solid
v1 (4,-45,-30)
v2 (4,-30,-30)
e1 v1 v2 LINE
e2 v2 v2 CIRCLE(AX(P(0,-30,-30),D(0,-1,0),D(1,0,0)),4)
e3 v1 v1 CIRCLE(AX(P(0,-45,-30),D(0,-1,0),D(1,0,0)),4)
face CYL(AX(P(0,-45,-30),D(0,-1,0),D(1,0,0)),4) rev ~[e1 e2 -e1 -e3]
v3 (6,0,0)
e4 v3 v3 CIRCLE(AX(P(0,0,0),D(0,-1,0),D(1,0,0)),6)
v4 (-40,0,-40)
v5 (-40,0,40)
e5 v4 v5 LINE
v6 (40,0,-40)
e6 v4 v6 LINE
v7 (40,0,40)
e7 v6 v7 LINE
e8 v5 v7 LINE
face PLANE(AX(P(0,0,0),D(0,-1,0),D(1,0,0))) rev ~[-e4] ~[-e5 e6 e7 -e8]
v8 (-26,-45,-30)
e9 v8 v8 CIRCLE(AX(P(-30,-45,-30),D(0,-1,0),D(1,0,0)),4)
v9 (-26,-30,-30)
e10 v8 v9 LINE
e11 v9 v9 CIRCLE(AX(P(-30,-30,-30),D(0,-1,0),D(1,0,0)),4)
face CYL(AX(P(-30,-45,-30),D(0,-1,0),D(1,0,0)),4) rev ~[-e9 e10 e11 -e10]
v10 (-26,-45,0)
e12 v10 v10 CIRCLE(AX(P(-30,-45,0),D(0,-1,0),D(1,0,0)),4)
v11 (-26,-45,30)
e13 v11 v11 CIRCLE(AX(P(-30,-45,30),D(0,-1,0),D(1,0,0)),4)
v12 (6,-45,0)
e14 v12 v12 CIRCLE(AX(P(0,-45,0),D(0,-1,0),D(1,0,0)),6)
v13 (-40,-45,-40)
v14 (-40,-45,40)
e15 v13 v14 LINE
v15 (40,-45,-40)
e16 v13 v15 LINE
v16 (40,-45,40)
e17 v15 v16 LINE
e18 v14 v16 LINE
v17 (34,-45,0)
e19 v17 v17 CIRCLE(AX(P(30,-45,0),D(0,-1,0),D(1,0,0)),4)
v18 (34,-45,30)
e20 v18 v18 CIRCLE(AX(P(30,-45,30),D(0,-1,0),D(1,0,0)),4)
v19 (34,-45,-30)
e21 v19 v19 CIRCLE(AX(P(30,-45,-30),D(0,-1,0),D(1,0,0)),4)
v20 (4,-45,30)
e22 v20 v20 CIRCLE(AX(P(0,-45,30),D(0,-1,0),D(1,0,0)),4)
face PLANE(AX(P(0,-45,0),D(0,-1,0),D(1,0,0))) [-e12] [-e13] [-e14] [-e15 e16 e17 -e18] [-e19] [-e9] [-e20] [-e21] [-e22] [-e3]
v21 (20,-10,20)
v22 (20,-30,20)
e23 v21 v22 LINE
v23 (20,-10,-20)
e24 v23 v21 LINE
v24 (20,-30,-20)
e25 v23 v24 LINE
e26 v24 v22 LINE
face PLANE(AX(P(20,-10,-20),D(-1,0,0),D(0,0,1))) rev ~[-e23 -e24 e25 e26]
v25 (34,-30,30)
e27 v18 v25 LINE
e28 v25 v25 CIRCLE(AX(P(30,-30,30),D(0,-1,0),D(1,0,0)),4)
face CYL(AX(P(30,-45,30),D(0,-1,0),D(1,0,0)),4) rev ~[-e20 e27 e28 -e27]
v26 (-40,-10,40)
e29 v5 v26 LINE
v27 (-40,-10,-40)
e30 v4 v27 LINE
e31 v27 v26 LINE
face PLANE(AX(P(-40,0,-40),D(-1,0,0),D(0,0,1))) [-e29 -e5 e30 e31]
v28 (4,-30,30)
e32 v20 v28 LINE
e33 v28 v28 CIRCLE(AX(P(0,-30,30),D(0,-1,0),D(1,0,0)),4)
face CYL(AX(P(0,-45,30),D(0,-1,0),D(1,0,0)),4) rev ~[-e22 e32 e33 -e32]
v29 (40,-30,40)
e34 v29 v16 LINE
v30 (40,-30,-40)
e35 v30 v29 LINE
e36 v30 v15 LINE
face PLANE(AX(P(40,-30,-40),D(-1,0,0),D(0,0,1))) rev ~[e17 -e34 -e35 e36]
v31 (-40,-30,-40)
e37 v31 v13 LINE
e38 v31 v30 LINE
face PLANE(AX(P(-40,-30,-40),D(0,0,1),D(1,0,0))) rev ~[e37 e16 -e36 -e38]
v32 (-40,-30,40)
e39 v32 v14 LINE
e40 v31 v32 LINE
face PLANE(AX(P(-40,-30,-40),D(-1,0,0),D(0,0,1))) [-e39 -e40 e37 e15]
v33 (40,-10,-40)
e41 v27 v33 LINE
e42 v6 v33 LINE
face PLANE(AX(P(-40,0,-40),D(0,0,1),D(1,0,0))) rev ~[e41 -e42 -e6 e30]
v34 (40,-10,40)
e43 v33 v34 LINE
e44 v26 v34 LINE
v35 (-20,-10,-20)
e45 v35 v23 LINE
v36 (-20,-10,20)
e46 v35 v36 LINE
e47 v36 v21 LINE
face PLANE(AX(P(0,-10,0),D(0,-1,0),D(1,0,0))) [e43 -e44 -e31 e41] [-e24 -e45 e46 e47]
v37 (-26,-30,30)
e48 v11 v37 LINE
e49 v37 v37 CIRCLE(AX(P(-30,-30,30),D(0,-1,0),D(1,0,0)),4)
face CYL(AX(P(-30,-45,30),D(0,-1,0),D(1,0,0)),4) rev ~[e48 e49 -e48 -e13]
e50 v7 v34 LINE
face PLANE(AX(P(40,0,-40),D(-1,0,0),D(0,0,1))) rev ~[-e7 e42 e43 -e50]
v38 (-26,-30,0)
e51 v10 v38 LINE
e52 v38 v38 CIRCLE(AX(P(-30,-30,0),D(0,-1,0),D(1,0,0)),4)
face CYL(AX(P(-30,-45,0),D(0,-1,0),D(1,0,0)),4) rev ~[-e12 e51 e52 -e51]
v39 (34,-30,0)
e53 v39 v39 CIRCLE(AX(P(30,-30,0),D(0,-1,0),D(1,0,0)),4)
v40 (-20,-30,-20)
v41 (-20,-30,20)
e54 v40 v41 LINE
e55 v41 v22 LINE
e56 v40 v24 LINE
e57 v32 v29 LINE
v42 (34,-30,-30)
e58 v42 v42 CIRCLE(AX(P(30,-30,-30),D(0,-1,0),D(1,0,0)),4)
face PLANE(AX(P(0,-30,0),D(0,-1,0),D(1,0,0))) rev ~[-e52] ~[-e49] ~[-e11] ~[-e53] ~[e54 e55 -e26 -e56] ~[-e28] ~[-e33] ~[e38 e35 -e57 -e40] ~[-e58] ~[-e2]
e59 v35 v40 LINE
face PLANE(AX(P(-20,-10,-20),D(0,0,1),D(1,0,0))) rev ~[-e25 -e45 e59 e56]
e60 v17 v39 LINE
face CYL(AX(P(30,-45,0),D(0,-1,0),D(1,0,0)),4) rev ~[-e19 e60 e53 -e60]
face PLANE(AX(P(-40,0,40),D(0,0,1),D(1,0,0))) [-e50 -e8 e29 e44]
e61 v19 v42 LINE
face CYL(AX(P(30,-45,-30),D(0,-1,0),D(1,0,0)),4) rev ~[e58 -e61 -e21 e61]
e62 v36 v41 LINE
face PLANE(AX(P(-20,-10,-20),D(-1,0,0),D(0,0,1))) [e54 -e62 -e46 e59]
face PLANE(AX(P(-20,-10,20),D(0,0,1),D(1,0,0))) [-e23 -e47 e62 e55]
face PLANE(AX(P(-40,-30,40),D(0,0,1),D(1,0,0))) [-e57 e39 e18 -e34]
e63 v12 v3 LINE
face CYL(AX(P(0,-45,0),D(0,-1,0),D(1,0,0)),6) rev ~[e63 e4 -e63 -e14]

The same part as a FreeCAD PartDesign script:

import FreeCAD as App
import Part
import Sketcher
Q = App.Units.Quantity


def add_polygon(sketch, points):
    """Adds a closed chain of lines whose ends are joined by coincident constraints."""
    first, n = sketch.GeometryCount, len(points)
    for a, b in zip(points, points[1:] + points[:1]):
        sketch.addGeometry(Part.LineSegment(App.Vector(*a, 0), App.Vector(*b, 0)), False)
    for i in range(n):
        sketch.addConstraint(Sketcher.Constraint("Coincident", first + i, 2, first + (i + 1) % n, 1))

doc = App.newDocument("Part")
body = doc.addObject("PartDesign::Body", "Body")

# Sketch on XZ plane
sketch1 = body.newObject("Sketcher::SketchObject", "Sketch")
sketch1.AttachmentSupport = (doc.getObject("XZ_Plane"), [""])
sketch1.MapMode = "FlatFace"
add_polygon(sketch1, [(-40, 40), (-40, -40), (40, -40), (40, 40)])  # lines 0-3
sketch1.addConstraint([
    Sketcher.Constraint("Vertical", 0),
    Sketcher.Constraint("Horizontal", 1),
    Sketcher.Constraint("Vertical", 2),
    Sketcher.Constraint("Horizontal", 3),
    Sketcher.Constraint("Symmetric", 0, 2, 2, 2, -1, 1),
    Sketcher.Constraint("Equal", 3, 0),
    Sketcher.Constraint("DistanceX", 1, 1, 1, 2, Q("80 mm")),
])
pad1 = body.newObject("PartDesign::Pad", "Pad")
pad1.Profile = sketch1
pad1.Length = 10

# Sketch on XZ plane
sketch2 = body.newObject("Sketcher::SketchObject", "Sketch001")
sketch2.AttachmentSupport = (doc.getObject("XZ_Plane"), [""])
sketch2.MapMode = "FlatFace"
sketch2.AttachmentOffset = App.Placement(App.Vector(0, 0, 10), App.Rotation())
add_polygon(sketch2, [(-20, 20), (-20, -20), (20, -20), (20, 20)])  # lines 0-3
sketch2.addConstraint([
    Sketcher.Constraint("Vertical", 0),
    Sketcher.Constraint("Horizontal", 1),
    Sketcher.Constraint("Vertical", 2),
    Sketcher.Constraint("Horizontal", 3),
    Sketcher.Constraint("Symmetric", 0, 2, 2, 2, -1, 1),
    Sketcher.Constraint("Equal", 3, 0),
    Sketcher.Constraint("DistanceX", 1, 1, 1, 2, Q("40 mm")),
])
pad2 = body.newObject("PartDesign::Pad", "Pad001")
pad2.Profile = sketch2
pad2.Length = 20

# Sketch on XZ plane
sketch3 = body.newObject("Sketcher::SketchObject", "Sketch002")
sketch3.AttachmentSupport = (doc.getObject("XZ_Plane"), [""])
sketch3.MapMode = "FlatFace"
sketch3.AttachmentOffset = App.Placement(App.Vector(0, 0, 30), App.Rotation())
add_polygon(sketch3, [(-40, 40), (-40, -40), (40, -40), (40, 40)])  # lines 0-3
sketch3.addConstraint([
    Sketcher.Constraint("Vertical", 0),
    Sketcher.Constraint("Horizontal", 1),
    Sketcher.Constraint("Vertical", 2),
    Sketcher.Constraint("Horizontal", 3),
    Sketcher.Constraint("Symmetric", 0, 2, 2, 2, -1, 1),
    Sketcher.Constraint("Equal", 3, 0),
    Sketcher.Constraint("DistanceX", 1, 1, 1, 2, Q("80 mm")),
])
pad3 = body.newObject("PartDesign::Pad", "Pad002")
pad3.Profile = sketch3
pad3.Length = 15

# Sketch on XZ plane
sketch4 = body.newObject("Sketcher::SketchObject", "Sketch003")
sketch4.AttachmentSupport = (doc.getObject("XZ_Plane"), [""])
sketch4.MapMode = "FlatFace"
sketch4.AttachmentOffset = App.Placement(App.Vector(0, 0, 45), App.Rotation())
sketch4.addGeometry([
    Part.Circle(App.Vector(-30, 30, 0), App.Vector(0, 0, 1), 4),  # 0
    Part.Circle(App.Vector(30, 30, 0), App.Vector(0, 0, 1), 4),  # 1
    Part.Circle(App.Vector(30, -30, 0), App.Vector(0, 0, 1), 4),  # 2
    Part.Circle(App.Vector(-30, -30, 0), App.Vector(0, 0, 1), 4),  # 3
    Part.Circle(App.Vector(0, -30, 0), App.Vector(0, 0, 1), 4),  # 4
    Part.Circle(App.Vector(0, 30, 0), App.Vector(0, 0, 1), 4),  # 5
    Part.Circle(App.Vector(-30, 0, 0), App.Vector(0, 0, 1), 4),  # 6
    Part.Circle(App.Vector(30, 0, 0), App.Vector(0, 0, 1), 4),  # 7
], False)
sketch4.addConstraint([
    Sketcher.Constraint("Equal", 0, 1),
    Sketcher.Constraint("Equal", 1, 2),
    Sketcher.Constraint("Equal", 2, 3),
    Sketcher.Constraint("Equal", 3, 4),
    Sketcher.Constraint("Equal", 4, 5),
    Sketcher.Constraint("Equal", 5, 6),
    Sketcher.Constraint("Equal", 6, 7),
    Sketcher.Constraint("Symmetric", 0, 3, 2, 3, -1, 1),
    Sketcher.Constraint("Symmetric", 1, 3, 3, 3, -1, 1),
    Sketcher.Constraint("Symmetric", 4, 3, 5, 3, -1, 1),
    Sketcher.Constraint("Symmetric", 6, 3, 7, 3, -1, 1),
    Sketcher.Constraint("Symmetric", 0, 3, 1, 3, -2),
    Sketcher.Constraint("PointOnObject", 4, 3, -2),
    Sketcher.Constraint("PointOnObject", 6, 3, -1),
    Sketcher.Constraint("Horizontal", 3, 3, 4, 3),
    Sketcher.Constraint("Vertical", 3, 3, 6, 3),
    Sketcher.Constraint("Diameter", 0, Q("8 mm")),
    Sketcher.Constraint("DistanceX", 0, 3, -1, 1, Q("30 mm")),
    Sketcher.Constraint("DistanceY", -1, 1, 0, 3, Q("30 mm")),
])
pocket1 = body.newObject("PartDesign::Pocket", "Pocket")
pocket1.Profile = sketch4
pocket1.Length = 15

# Sketch on XZ plane
sketch5 = body.newObject("Sketcher::SketchObject", "Sketch004")
sketch5.AttachmentSupport = (doc.getObject("XZ_Plane"), [""])
sketch5.MapMode = "FlatFace"
sketch5.AttachmentOffset = App.Placement(App.Vector(0, 0, 45), App.Rotation())
sketch5.addGeometry(Part.Circle(App.Vector(0, 0, 0), App.Vector(0, 0, 1), 6), False)
sketch5.addConstraint([
    Sketcher.Constraint("Coincident", 0, 3, -1, 1),
    Sketcher.Constraint("Diameter", 0, Q("12 mm")),
])
pocket2 = body.newObject("PartDesign::Pocket", "Pocket001")
pocket2.Profile = sketch5
pocket2.Type = "ThroughAll"

doc.recompute()
